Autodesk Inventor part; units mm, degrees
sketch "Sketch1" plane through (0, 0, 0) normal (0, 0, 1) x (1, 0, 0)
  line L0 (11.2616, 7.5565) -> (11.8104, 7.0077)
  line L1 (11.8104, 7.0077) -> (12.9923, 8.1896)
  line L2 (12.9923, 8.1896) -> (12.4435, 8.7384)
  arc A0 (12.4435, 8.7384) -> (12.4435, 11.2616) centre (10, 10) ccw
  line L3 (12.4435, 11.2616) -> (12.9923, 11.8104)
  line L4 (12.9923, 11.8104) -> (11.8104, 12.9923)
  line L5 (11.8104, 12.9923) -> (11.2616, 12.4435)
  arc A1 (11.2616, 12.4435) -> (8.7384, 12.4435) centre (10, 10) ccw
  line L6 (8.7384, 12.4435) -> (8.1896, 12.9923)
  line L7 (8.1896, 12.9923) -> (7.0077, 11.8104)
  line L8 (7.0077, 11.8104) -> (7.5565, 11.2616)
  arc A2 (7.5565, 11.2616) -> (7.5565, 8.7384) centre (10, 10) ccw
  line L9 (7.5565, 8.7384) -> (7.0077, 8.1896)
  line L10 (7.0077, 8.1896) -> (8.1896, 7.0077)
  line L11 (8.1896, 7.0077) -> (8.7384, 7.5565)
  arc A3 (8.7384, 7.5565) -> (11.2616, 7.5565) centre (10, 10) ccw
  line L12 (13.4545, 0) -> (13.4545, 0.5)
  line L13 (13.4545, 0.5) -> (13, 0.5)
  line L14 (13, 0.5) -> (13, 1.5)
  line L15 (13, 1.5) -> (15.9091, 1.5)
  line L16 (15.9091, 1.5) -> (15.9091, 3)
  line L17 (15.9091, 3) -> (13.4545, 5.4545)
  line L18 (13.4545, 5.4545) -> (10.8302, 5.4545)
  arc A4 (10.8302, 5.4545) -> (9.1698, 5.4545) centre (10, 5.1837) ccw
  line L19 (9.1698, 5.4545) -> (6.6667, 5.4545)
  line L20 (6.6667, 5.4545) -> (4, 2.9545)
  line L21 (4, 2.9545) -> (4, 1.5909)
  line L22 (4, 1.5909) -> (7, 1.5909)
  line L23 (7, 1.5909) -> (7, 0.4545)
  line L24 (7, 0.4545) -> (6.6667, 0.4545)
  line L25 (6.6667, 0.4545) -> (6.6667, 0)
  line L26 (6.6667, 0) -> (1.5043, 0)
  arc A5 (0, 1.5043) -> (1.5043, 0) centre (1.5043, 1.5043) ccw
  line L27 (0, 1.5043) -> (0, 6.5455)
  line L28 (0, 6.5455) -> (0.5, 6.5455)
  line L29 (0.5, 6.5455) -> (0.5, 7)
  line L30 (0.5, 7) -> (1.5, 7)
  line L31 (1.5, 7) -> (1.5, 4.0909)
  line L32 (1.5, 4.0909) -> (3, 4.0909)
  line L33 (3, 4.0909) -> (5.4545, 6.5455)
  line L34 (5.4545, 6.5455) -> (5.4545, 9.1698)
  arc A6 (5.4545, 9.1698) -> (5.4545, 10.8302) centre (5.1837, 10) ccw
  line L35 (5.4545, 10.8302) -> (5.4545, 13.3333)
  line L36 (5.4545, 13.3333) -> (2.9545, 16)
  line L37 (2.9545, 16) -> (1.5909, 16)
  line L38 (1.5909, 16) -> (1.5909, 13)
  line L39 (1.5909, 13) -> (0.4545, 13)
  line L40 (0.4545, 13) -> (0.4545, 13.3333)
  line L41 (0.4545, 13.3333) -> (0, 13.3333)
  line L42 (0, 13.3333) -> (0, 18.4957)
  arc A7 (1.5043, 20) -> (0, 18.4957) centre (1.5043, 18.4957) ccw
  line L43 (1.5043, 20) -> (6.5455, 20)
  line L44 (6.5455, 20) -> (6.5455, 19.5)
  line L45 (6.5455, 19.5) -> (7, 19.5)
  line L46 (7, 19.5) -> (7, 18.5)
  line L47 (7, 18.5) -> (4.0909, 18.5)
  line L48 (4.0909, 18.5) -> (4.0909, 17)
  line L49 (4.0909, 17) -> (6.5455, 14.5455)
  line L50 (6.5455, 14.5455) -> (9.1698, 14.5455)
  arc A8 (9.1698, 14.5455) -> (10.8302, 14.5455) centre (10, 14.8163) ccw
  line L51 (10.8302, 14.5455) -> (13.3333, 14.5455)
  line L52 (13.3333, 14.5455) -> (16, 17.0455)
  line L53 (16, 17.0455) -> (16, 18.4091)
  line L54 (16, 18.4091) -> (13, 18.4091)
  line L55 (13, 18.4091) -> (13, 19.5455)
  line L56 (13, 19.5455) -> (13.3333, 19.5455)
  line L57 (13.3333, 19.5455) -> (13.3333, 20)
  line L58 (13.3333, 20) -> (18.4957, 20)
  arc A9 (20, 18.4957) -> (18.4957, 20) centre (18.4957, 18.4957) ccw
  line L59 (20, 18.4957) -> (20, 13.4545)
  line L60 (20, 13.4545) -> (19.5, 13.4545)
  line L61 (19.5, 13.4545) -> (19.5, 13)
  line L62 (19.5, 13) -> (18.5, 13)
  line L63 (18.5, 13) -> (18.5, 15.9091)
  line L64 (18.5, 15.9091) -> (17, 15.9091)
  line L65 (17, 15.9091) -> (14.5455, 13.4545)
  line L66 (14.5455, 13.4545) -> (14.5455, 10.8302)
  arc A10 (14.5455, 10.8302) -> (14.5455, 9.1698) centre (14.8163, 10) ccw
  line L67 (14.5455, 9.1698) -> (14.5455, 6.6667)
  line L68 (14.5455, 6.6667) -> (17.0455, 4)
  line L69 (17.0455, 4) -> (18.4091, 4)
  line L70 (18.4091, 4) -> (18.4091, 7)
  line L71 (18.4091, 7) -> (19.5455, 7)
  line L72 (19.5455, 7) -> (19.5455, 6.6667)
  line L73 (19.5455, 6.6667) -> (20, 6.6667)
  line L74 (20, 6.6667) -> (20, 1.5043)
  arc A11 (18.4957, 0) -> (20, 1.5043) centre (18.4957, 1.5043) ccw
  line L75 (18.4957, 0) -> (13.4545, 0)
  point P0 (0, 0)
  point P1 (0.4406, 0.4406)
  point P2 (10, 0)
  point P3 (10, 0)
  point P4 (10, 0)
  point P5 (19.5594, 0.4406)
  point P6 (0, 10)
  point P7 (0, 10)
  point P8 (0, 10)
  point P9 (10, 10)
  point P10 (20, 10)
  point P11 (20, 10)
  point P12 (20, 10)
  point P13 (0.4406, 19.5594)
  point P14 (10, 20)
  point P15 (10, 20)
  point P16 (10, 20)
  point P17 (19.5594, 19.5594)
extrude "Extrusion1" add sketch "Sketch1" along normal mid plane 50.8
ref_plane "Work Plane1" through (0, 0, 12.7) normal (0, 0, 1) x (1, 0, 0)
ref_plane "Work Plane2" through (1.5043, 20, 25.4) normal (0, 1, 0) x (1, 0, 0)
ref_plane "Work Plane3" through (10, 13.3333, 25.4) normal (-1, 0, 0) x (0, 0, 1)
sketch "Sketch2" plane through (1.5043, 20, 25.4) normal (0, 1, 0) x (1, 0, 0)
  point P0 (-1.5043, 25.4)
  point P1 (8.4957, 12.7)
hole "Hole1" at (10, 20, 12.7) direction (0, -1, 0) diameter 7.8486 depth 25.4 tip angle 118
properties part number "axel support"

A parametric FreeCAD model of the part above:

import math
import FreeCAD as App
import Part
import Sketcher
Q = App.Units.Quantity

doc = App.newDocument("Part")
body = doc.addObject("PartDesign::Body", "Body")

# Sketch on XY plane
sketch1 = body.newObject("Sketcher::SketchObject", "Sketch")
sketch1.AttachmentSupport = (doc.getObject("XY_Plane"), [""])
sketch1.MapMode = "FlatFace"
sketch1.addGeometry([
    Part.LineSegment(App.Vector(13.45, 0.5, 0), App.Vector(13.45, 0, 0)),  # 0
    Part.LineSegment(App.Vector(13.45, 0, 0), App.Vector(18.5, 0, 0)),  # 1
    Part.ArcOfCircle(Part.Circle(App.Vector(18.5, 1.5, 0), App.Vector(0, 0, 1), 1.5), math.radians(-90), math.radians(0)),  # 2
    Part.LineSegment(App.Vector(20, 1.5, 0), App.Vector(20, 6.67, 0)),  # 3
    Part.LineSegment(App.Vector(20, 6.67, 0), App.Vector(19.55, 6.67, 0)),  # 4
    Part.LineSegment(App.Vector(19.55, 6.67, 0), App.Vector(19.55, 7, 0)),  # 5
    Part.LineSegment(App.Vector(19.55, 7, 0), App.Vector(18.41, 7, 0)),  # 6
    Part.LineSegment(App.Vector(18.41, 7, 0), App.Vector(18.41, 4, 0)),  # 7
    Part.LineSegment(App.Vector(18.41, 4, 0), App.Vector(17.05, 4, 0)),  # 8
    Part.LineSegment(App.Vector(17.05, 4, 0), App.Vector(14.55, 6.67, 0)),  # 9
    Part.LineSegment(App.Vector(14.55, 6.67, 0), App.Vector(14.55, 9.17, 0)),  # 10
    Part.ArcOfCircle(Part.Circle(App.Vector(14.82, 10, 0), App.Vector(0, 0, 1), 0.87), math.radians(108), math.radians(252)),  # 11
    Part.LineSegment(App.Vector(14.55, 10.83, 0), App.Vector(14.55, 13.45, 0)),  # 12
    Part.LineSegment(App.Vector(14.55, 13.45, 0), App.Vector(17, 15.91, 0)),  # 13
    Part.LineSegment(App.Vector(17, 15.91, 0), App.Vector(18.5, 15.91, 0)),  # 14
    Part.LineSegment(App.Vector(18.5, 15.91, 0), App.Vector(18.5, 13, 0)),  # 15
    Part.LineSegment(App.Vector(18.5, 13, 0), App.Vector(19.5, 13, 0)),  # 16
    Part.LineSegment(App.Vector(19.5, 13, 0), App.Vector(19.5, 13.45, 0)),  # 17
    Part.LineSegment(App.Vector(19.5, 13.45, 0), App.Vector(20, 13.45, 0)),  # 18
    Part.LineSegment(App.Vector(20, 13.45, 0), App.Vector(20, 18.5, 0)),  # 19
    Part.ArcOfCircle(Part.Circle(App.Vector(18.5, 18.5, 0), App.Vector(0, 0, 1), 1.5), math.radians(0), math.radians(90)),  # 20
    Part.LineSegment(App.Vector(18.5, 20, 0), App.Vector(13.33, 20, 0)),  # 21
    Part.LineSegment(App.Vector(13.33, 20, 0), App.Vector(13.33, 19.55, 0)),  # 22
    Part.LineSegment(App.Vector(13.33, 19.55, 0), App.Vector(13, 19.55, 0)),  # 23
    Part.LineSegment(App.Vector(13, 19.55, 0), App.Vector(13, 18.41, 0)),  # 24
    Part.LineSegment(App.Vector(13, 18.41, 0), App.Vector(16, 18.41, 0)),  # 25
    Part.LineSegment(App.Vector(16, 18.41, 0), App.Vector(16, 17.05, 0)),  # 26
    Part.LineSegment(App.Vector(16, 17.05, 0), App.Vector(13.33, 14.55, 0)),  # 27
    Part.LineSegment(App.Vector(13.33, 14.55, 0), App.Vector(10.83, 14.55, 0)),  # 28
    Part.ArcOfCircle(Part.Circle(App.Vector(10, 14.82, 0), App.Vector(0, 0, 1), 0.87), math.radians(-162), math.radians(-18)),  # 29
    Part.LineSegment(App.Vector(9.17, 14.55, 0), App.Vector(6.55, 14.55, 0)),  # 30
    Part.LineSegment(App.Vector(6.55, 14.55, 0), App.Vector(4.09, 17, 0)),  # 31
    Part.LineSegment(App.Vector(4.09, 17, 0), App.Vector(4.09, 18.5, 0)),  # 32
    Part.LineSegment(App.Vector(4.09, 18.5, 0), App.Vector(7, 18.5, 0)),  # 33
    Part.LineSegment(App.Vector(7, 18.5, 0), App.Vector(7, 19.5, 0)),  # 34
    Part.LineSegment(App.Vector(7, 19.5, 0), App.Vector(6.55, 19.5, 0)),  # 35
    Part.LineSegment(App.Vector(6.55, 19.5, 0), App.Vector(6.55, 20, 0)),  # 36
    Part.LineSegment(App.Vector(6.55, 20, 0), App.Vector(1.5, 20, 0)),  # 37
    Part.ArcOfCircle(Part.Circle(App.Vector(1.5, 18.5, 0), App.Vector(0, 0, 1), 1.5), math.radians(90), math.radians(180)),  # 38
    Part.LineSegment(App.Vector(0, 18.5, 0), App.Vector(0, 13.33, 0)),  # 39
    Part.LineSegment(App.Vector(0, 13.33, 0), App.Vector(0.45, 13.33, 0)),  # 40
    Part.LineSegment(App.Vector(0.45, 13.33, 0), App.Vector(0.45, 13, 0)),  # 41
    Part.LineSegment(App.Vector(0.45, 13, 0), App.Vector(1.59, 13, 0)),  # 42
    Part.LineSegment(App.Vector(1.59, 13, 0), App.Vector(1.59, 16, 0)),  # 43
    Part.LineSegment(App.Vector(1.59, 16, 0), App.Vector(2.95, 16, 0)),  # 44
    Part.LineSegment(App.Vector(2.95, 16, 0), App.Vector(5.45, 13.33, 0)),  # 45
    Part.LineSegment(App.Vector(5.45, 13.33, 0), App.Vector(5.45, 10.83, 0)),  # 46
    Part.ArcOfCircle(Part.Circle(App.Vector(5.18, 10, 0), App.Vector(0, 0, 1), 0.87), math.radians(-72), math.radians(72)),  # 47
    Part.LineSegment(App.Vector(5.45, 9.17, 0), App.Vector(5.45, 6.55, 0)),  # 48
    Part.LineSegment(App.Vector(5.45, 6.55, 0), App.Vector(3, 4.09, 0)),  # 49
    Part.LineSegment(App.Vector(3, 4.09, 0), App.Vector(1.5, 4.09, 0)),  # 50
    Part.LineSegment(App.Vector(1.5, 4.09, 0), App.Vector(1.5, 7, 0)),  # 51
    Part.LineSegment(App.Vector(1.5, 7, 0), App.Vector(0.5, 7, 0)),  # 52
    Part.LineSegment(App.Vector(0.5, 7, 0), App.Vector(0.5, 6.55, 0)),  # 53
    Part.LineSegment(App.Vector(0.5, 6.55, 0), App.Vector(0, 6.55, 0)),  # 54
    Part.LineSegment(App.Vector(0, 6.55, 0), App.Vector(0, 1.5, 0)),  # 55
    Part.ArcOfCircle(Part.Circle(App.Vector(1.5, 1.5, 0), App.Vector(0, 0, 1), 1.5), math.radians(180), math.radians(270)),  # 56
    Part.LineSegment(App.Vector(1.5, 0, 0), App.Vector(6.67, 0, 0)),  # 57
    Part.LineSegment(App.Vector(6.67, 0, 0), App.Vector(6.67, 0.45, 0)),  # 58
    Part.LineSegment(App.Vector(6.67, 0.45, 0), App.Vector(7, 0.45, 0)),  # 59
    Part.LineSegment(App.Vector(7, 0.45, 0), App.Vector(7, 1.59, 0)),  # 60
    Part.LineSegment(App.Vector(7, 1.59, 0), App.Vector(4, 1.59, 0)),  # 61
    Part.LineSegment(App.Vector(4, 1.59, 0), App.Vector(4, 2.95, 0)),  # 62
    Part.LineSegment(App.Vector(4, 2.95, 0), App.Vector(6.67, 5.45, 0)),  # 63
    Part.LineSegment(App.Vector(6.67, 5.45, 0), App.Vector(9.17, 5.45, 0)),  # 64
    Part.ArcOfCircle(Part.Circle(App.Vector(10, 5.18, 0), App.Vector(0, 0, 1), 0.87), math.radians(18), math.radians(162)),  # 65
    Part.LineSegment(App.Vector(10.83, 5.45, 0), App.Vector(13.45, 5.45, 0)),  # 66
    Part.LineSegment(App.Vector(13.45, 5.45, 0), App.Vector(15.91, 3, 0)),  # 67
    Part.LineSegment(App.Vector(15.91, 3, 0), App.Vector(15.91, 1.5, 0)),  # 68
    Part.LineSegment(App.Vector(15.91, 1.5, 0), App.Vector(13, 1.5, 0)),  # 69
    Part.LineSegment(App.Vector(13, 1.5, 0), App.Vector(13, 0.5, 0)),  # 70
    Part.LineSegment(App.Vector(13, 0.5, 0), App.Vector(13.45, 0.5, 0)),  # 71
    Part.LineSegment(App.Vector(11.81, 7.01, 0), App.Vector(11.26, 7.56, 0)),  # 72
    Part.ArcOfCircle(Part.Circle(App.Vector(10, 10, 0), App.Vector(0, 0, 1), 2.75), math.radians(-117), math.radians(-63)),  # 73
    Part.LineSegment(App.Vector(8.74, 7.56, 0), App.Vector(8.19, 7.01, 0)),  # 74
    Part.LineSegment(App.Vector(8.19, 7.01, 0), App.Vector(7.01, 8.19, 0)),  # 75
    Part.LineSegment(App.Vector(7.01, 8.19, 0), App.Vector(7.56, 8.74, 0)),  # 76
    Part.ArcOfCircle(Part.Circle(App.Vector(10, 10, 0), App.Vector(0, 0, 1), 2.75), math.radians(153), math.radians(207)),  # 77
    Part.LineSegment(App.Vector(7.56, 11.26, 0), App.Vector(7.01, 11.81, 0)),  # 78
    Part.LineSegment(App.Vector(7.01, 11.81, 0), App.Vector(8.19, 12.99, 0)),  # 79
    Part.LineSegment(App.Vector(8.19, 12.99, 0), App.Vector(8.74, 12.44, 0)),  # 80
    Part.ArcOfCircle(Part.Circle(App.Vector(10, 10, 0), App.Vector(0, 0, 1), 2.75), math.radians(63), math.radians(117)),  # 81
    Part.LineSegment(App.Vector(11.26, 12.44, 0), App.Vector(11.81, 12.99, 0)),  # 82
    Part.LineSegment(App.Vector(11.81, 12.99, 0), App.Vector(12.99, 11.81, 0)),  # 83
    Part.LineSegment(App.Vector(12.99, 11.81, 0), App.Vector(12.44, 11.26, 0)),  # 84
    Part.ArcOfCircle(Part.Circle(App.Vector(10, 10, 0), App.Vector(0, 0, 1), 2.75), math.radians(-27), math.radians(27)),  # 85
    Part.LineSegment(App.Vector(12.44, 8.74, 0), App.Vector(12.99, 8.19, 0)),  # 86
    Part.LineSegment(App.Vector(12.99, 8.19, 0), App.Vector(11.81, 7.01, 0)),  # 87
], False)
sketch1.addConstraint([
    Sketcher.Constraint("Coincident", 0, 2, 1, 1),
    Sketcher.Constraint("Tangent", 1, 2, 2, 1),
    Sketcher.Constraint("Tangent", 2, 2, 3, 1),
    Sketcher.Constraint("Coincident", 3, 2, 4, 1),
    Sketcher.Constraint("Coincident", 4, 2, 5, 1),
    Sketcher.Constraint("Coincident", 5, 2, 6, 1),
    Sketcher.Constraint("Coincident", 6, 2, 7, 1),
    Sketcher.Constraint("Coincident", 7, 2, 8, 1),
    Sketcher.Constraint("Coincident", 8, 2, 9, 1),
    Sketcher.Constraint("Coincident", 9, 2, 10, 1),
    Sketcher.Constraint("Coincident", 10, 2, 11, 2),
    Sketcher.Constraint("Coincident", 11, 1, 12, 1),
    Sketcher.Constraint("Coincident", 12, 2, 13, 1),
    Sketcher.Constraint("Coincident", 13, 2, 14, 1),
    Sketcher.Constraint("Coincident", 14, 2, 15, 1),
    Sketcher.Constraint("Coincident", 15, 2, 16, 1),
    Sketcher.Constraint("Coincident", 16, 2, 17, 1),
    Sketcher.Constraint("Coincident", 17, 2, 18, 1),
    Sketcher.Constraint("Coincident", 18, 2, 19, 1),
    Sketcher.Constraint("Tangent", 19, 2, 20, 1),
    Sketcher.Constraint("Tangent", 20, 2, 21, 1),
    Sketcher.Constraint("Coincident", 21, 2, 22, 1),
    Sketcher.Constraint("Coincident", 22, 2, 23, 1),
    Sketcher.Constraint("Coincident", 23, 2, 24, 1),
    Sketcher.Constraint("Coincident", 24, 2, 25, 1),
    Sketcher.Constraint("Coincident", 25, 2, 26, 1),
    Sketcher.Constraint("Coincident", 26, 2, 27, 1),
    Sketcher.Constraint("Coincident", 27, 2, 28, 1),
    Sketcher.Constraint("Coincident", 28, 2, 29, 2),
    Sketcher.Constraint("Coincident", 29, 1, 30, 1),
    Sketcher.Constraint("Coincident", 30, 2, 31, 1),
    Sketcher.Constraint("Coincident", 31, 2, 32, 1),
    Sketcher.Constraint("Coincident", 32, 2, 33, 1),
    Sketcher.Constraint("Coincident", 33, 2, 34, 1),
    Sketcher.Constraint("Coincident", 34, 2, 35, 1),
    Sketcher.Constraint("Coincident", 35, 2, 36, 1),
    Sketcher.Constraint("Coincident", 36, 2, 37, 1),
    Sketcher.Constraint("Tangent", 37, 2, 38, 1),
    Sketcher.Constraint("Tangent", 38, 2, 39, 1),
    Sketcher.Constraint("Coincident", 39, 2, 40, 1),
    Sketcher.Constraint("Coincident", 40, 2, 41, 1),
    Sketcher.Constraint("Coincident", 41, 2, 42, 1),
    Sketcher.Constraint("Coincident", 42, 2, 43, 1),
    Sketcher.Constraint("Coincident", 43, 2, 44, 1),
    Sketcher.Constraint("Coincident", 44, 2, 45, 1),
    Sketcher.Constraint("Coincident", 45, 2, 46, 1),
    Sketcher.Constraint("Coincident", 46, 2, 47, 2),
    Sketcher.Constraint("Coincident", 47, 1, 48, 1),
    Sketcher.Constraint("Coincident", 48, 2, 49, 1),
    Sketcher.Constraint("Coincident", 49, 2, 50, 1),
    Sketcher.Constraint("Coincident", 50, 2, 51, 1),
    Sketcher.Constraint("Coincident", 51, 2, 52, 1),
    Sketcher.Constraint("Coincident", 52, 2, 53, 1),
    Sketcher.Constraint("Coincident", 53, 2, 54, 1),
    Sketcher.Constraint("Coincident", 54, 2, 55, 1),
    Sketcher.Constraint("Tangent", 55, 2, 56, 1),
    Sketcher.Constraint("Tangent", 56, 2, 57, 1),
    Sketcher.Constraint("Coincident", 57, 2, 58, 1),
    Sketcher.Constraint("Coincident", 58, 2, 59, 1),
    Sketcher.Constraint("Coincident", 59, 2, 60, 1),
    Sketcher.Constraint("Coincident", 60, 2, 61, 1),
    Sketcher.Constraint("Coincident", 61, 2, 62, 1),
    Sketcher.Constraint("Coincident", 62, 2, 63, 1),
    Sketcher.Constraint("Coincident", 63, 2, 64, 1),
    Sketcher.Constraint("Coincident", 64, 2, 65, 2),
    Sketcher.Constraint("Coincident", 65, 1, 66, 1),
    Sketcher.Constraint("Coincident", 66, 2, 67, 1),
    Sketcher.Constraint("Coincident", 67, 2, 68, 1),
    Sketcher.Constraint("Coincident", 68, 2, 69, 1),
    Sketcher.Constraint("Coincident", 69, 2, 70, 1),
    Sketcher.Constraint("Coincident", 70, 2, 71, 1),
    Sketcher.Constraint("Coincident", 71, 2, 0, 1),
    Sketcher.Constraint("Coincident", 72, 2, 73, 2),
    Sketcher.Constraint("Coincident", 73, 1, 74, 1),
    Sketcher.Constraint("Coincident", 74, 2, 75, 1),
    Sketcher.Constraint("Coincident", 75, 2, 76, 1),
    Sketcher.Constraint("Coincident", 76, 2, 77, 2),
    Sketcher.Constraint("Coincident", 77, 1, 78, 1),
    Sketcher.Constraint("Coincident", 78, 2, 79, 1),
    Sketcher.Constraint("Coincident", 79, 2, 80, 1),
    Sketcher.Constraint("Coincident", 80, 2, 81, 2),
    Sketcher.Constraint("Coincident", 81, 1, 82, 1),
    Sketcher.Constraint("Coincident", 82, 2, 83, 1),
    Sketcher.Constraint("Coincident", 83, 2, 84, 1),
    Sketcher.Constraint("Coincident", 84, 2, 85, 2),
    Sketcher.Constraint("Coincident", 85, 1, 86, 1),
    Sketcher.Constraint("Coincident", 86, 2, 87, 1),
    Sketcher.Constraint("Coincident", 87, 2, 72, 1),
    Sketcher.Constraint("Vertical", 0),
    Sketcher.Constraint("Horizontal", 1),
    Sketcher.Constraint("Vertical", 3),
    Sketcher.Constraint("Horizontal", 4),
    Sketcher.Constraint("Vertical", 5),
    Sketcher.Constraint("Horizontal", 6),
    Sketcher.Constraint("Vertical", 7),
    Sketcher.Constraint("Horizontal", 8),
    Sketcher.Constraint("Vertical", 10),
    Sketcher.Constraint("Vertical", 12),
    Sketcher.Constraint("Horizontal", 14),
    Sketcher.Constraint("Vertical", 15),
    Sketcher.Constraint("Horizontal", 16),
    Sketcher.Constraint("Vertical", 17),
    Sketcher.Constraint("Horizontal", 18),
    Sketcher.Constraint("Vertical", 19),
    Sketcher.Constraint("Horizontal", 21),
    Sketcher.Constraint("Vertical", 22),
    Sketcher.Constraint("Horizontal", 23),
    Sketcher.Constraint("Vertical", 24),
    Sketcher.Constraint("Horizontal", 25),
    Sketcher.Constraint("Vertical", 26),
    Sketcher.Constraint("Horizontal", 28),
    Sketcher.Constraint("Horizontal", 30),
    Sketcher.Constraint("Vertical", 32),
    Sketcher.Constraint("Horizontal", 33),
    Sketcher.Constraint("Vertical", 34),
    Sketcher.Constraint("Horizontal", 35),
    Sketcher.Constraint("Vertical", 36),
    Sketcher.Constraint("Horizontal", 37),
    Sketcher.Constraint("Vertical", 39),
    Sketcher.Constraint("Horizontal", 40),
    Sketcher.Constraint("Vertical", 41),
    Sketcher.Constraint("Horizontal", 42),
    Sketcher.Constraint("Vertical", 43),
    Sketcher.Constraint("Horizontal", 44),
    Sketcher.Constraint("Vertical", 46),
    Sketcher.Constraint("Vertical", 48),
    Sketcher.Constraint("Horizontal", 50),
    Sketcher.Constraint("Vertical", 51),
    Sketcher.Constraint("Horizontal", 52),
    Sketcher.Constraint("Vertical", 53),
    Sketcher.Constraint("Horizontal", 54),
    Sketcher.Constraint("Vertical", 55),
    Sketcher.Constraint("Horizontal", 57),
    Sketcher.Constraint("Vertical", 58),
    Sketcher.Constraint("Horizontal", 59),
    Sketcher.Constraint("Vertical", 60),
    Sketcher.Constraint("Horizontal", 61),
    Sketcher.Constraint("Vertical", 62),
    Sketcher.Constraint("Horizontal", 64),
    Sketcher.Constraint("Horizontal", 66),
    Sketcher.Constraint("Vertical", 68),
    Sketcher.Constraint("Horizontal", 69),
    Sketcher.Constraint("Vertical", 70),
    Sketcher.Constraint("Horizontal", 71),
    Sketcher.Constraint("Coincident", 77, 3, 73, 3),
    Sketcher.Constraint("Coincident", 81, 3, 73, 3),
    Sketcher.Constraint("Coincident", 85, 3, 73, 3),
    Sketcher.Constraint("Equal", 2, 20),
    Sketcher.Constraint("Equal", 11, 29),
    Sketcher.Constraint("Equal", 20, 38),
    Sketcher.Constraint("Equal", 29, 47),
    Sketcher.Constraint("Equal", 38, 56),
    Sketcher.Constraint("Equal", 47, 65),
    Sketcher.Constraint("Equal", 73, 77),
    Sketcher.Constraint("Equal", 77, 81),
    Sketcher.Constraint("Equal", 81, 85),
    Sketcher.Constraint("PointOnObject", 0, 2, -1),
    Sketcher.Constraint("PointOnObject", 38, 2, -2),
    Sketcher.Constraint("PointOnObject", 54, 2, -2),
    Sketcher.Constraint("PointOnObject", 56, 2, -1),
    Sketcher.Constraint("Perpendicular", 9, 27),
    Sketcher.Constraint("Perpendicular", 13, 31),
    Sketcher.Constraint("Perpendicular", 27, 45),
    Sketcher.Constraint("Perpendicular", 31, 49),
    Sketcher.Constraint("Perpendicular", 45, 63),
    Sketcher.Constraint("Perpendicular", 49, 67),
    Sketcher.Constraint("Parallel", 67, 72),
    Sketcher.Constraint("Perpendicular", 72, 74),
    Sketcher.Constraint("Perpendicular", 74, 75),
    Sketcher.Constraint("Perpendicular", 75, 76),
    Sketcher.Constraint("Perpendicular", 76, 78),
    Sketcher.Constraint("Perpendicular", 78, 79),
    Sketcher.Constraint("Perpendicular", 79, 80),
    Sketcher.Constraint("Perpendicular", 80, 82),
    Sketcher.Constraint("Perpendicular", 82, 83),
    Sketcher.Constraint("Perpendicular", 83, 84),
    Sketcher.Constraint("Perpendicular", 84, 86),
    Sketcher.Constraint("Perpendicular", 86, 87),
    Sketcher.Constraint("Horizontal", 20, 3, 38, 3),
    Sketcher.Constraint("Horizontal", 11, 3, 47, 3),
    Sketcher.Constraint("Horizontal", 47, 3, 73, 3),
    Sketcher.Constraint("Horizontal", 4, 2, 9, 2),
    Sketcher.Constraint("Horizontal", 12, 2, 17, 2),
    Sketcher.Constraint("Horizontal", 28, 2, 29, 1),
    Sketcher.Constraint("Horizontal", 16, 2, 41, 2),
    Sketcher.Constraint("Horizontal", 40, 2, 45, 2),
    Sketcher.Constraint("Horizontal", 11, 1, 46, 2),
    Sketcher.Constraint("Horizontal", 10, 2, 47, 1),
    Sketcher.Constraint("Horizontal", 6, 2, 51, 2),
    Sketcher.Constraint("Horizontal", 48, 2, 53, 2),
    Sketcher.Constraint("Horizontal", 64, 2, 65, 1),
    Sketcher.Constraint("Horizontal", 72, 2, 73, 1),
    Sketcher.Constraint("Horizontal", 80, 2, 81, 1),
    Sketcher.Constraint("Horizontal", 79, 2, 82, 2),
    Sketcher.Constraint("Horizontal", 78, 2, 83, 2),
    Sketcher.Constraint("Horizontal", 77, 1, 84, 2),
    Sketcher.Constraint("Horizontal", 76, 2, 85, 1),
    Sketcher.Constraint("Horizontal", 75, 2, 86, 2),
    Sketcher.Constraint("Vertical", 2, 3, 20, 3),
    Sketcher.Constraint("Vertical", 29, 3, 65, 3),
    Sketcher.Constraint("Vertical", 65, 3, 73, 3),
    Sketcher.Constraint("Vertical", 10, 2, 11, 1),
    Sketcher.Constraint("Vertical", 22, 2, 27, 2),
    Sketcher.Constraint("Vertical", 30, 2, 35, 2),
    Sketcher.Constraint("Vertical", 34, 2, 59, 2),
    Sketcher.Constraint("Vertical", 58, 2, 63, 2),
    Sketcher.Constraint("Vertical", 29, 1, 64, 2),
    Sketcher.Constraint("Vertical", 0, 2, 66, 2),
    Sketcher.Constraint("Vertical", 24, 2, 69, 2),
    Sketcher.Constraint("Vertical", 76, 2, 77, 1),
    Sketcher.Constraint("Vertical", 75, 2, 78, 2),
    Sketcher.Constraint("Vertical", 74, 2, 79, 2),
    Sketcher.Constraint("Equal", 4, 35),
    Sketcher.Constraint("Equal", 1, 37),
    Sketcher.Constraint("Equal", 35, 40),
    Sketcher.Constraint("Equal", 6, 42),
    Sketcher.Constraint("Equal", 8, 44),
    Sketcher.Constraint("Equal", 14, 50),
    Sketcher.Constraint("Equal", 16, 52),
    Sketcher.Constraint("Equal", 18, 54),
    Sketcher.Constraint("Equal", 21, 57),
    Sketcher.Constraint("Equal", 23, 59),
    Sketcher.Constraint("Equal", 25, 61),
    Sketcher.Constraint("Equal", 28, 64),
    Sketcher.Constraint("Equal", 33, 69),
    Sketcher.Constraint("Equal", 54, 0),
    Sketcher.Constraint("Equal", 57, 3),
    Sketcher.Constraint("Equal", 59, 5),
    Sketcher.Constraint("Equal", 61, 7),
    Sketcher.Constraint("Equal", 64, 10),
    Sketcher.Constraint("Equal", 66, 12),
    Sketcher.Constraint("Equal", 69, 15),
    Sketcher.Constraint("Equal", 71, 17),
    Sketcher.Constraint("Equal", 37, 19),
    Sketcher.Constraint("Equal", 17, 22),
    Sketcher.Constraint("Equal", 42, 24),
    Sketcher.Constraint("Equal", 44, 26),
    Sketcher.Constraint("Equal", 50, 32),
    Sketcher.Constraint("Equal", 52, 34),
    Sketcher.Constraint("Equal", 3, 39),
    Sketcher.Constraint("Equal", 7, 43),
    Sketcher.Constraint("Equal", 12, 48),
    Sketcher.Constraint("Equal", 53, 58),
    Sketcher.Constraint("Equal", 24, 60),
    Sketcher.Constraint("Equal", 26, 62),
    Sketcher.Constraint("Equal", 32, 68),
    Sketcher.Constraint("Equal", 74, 76),
    Sketcher.Constraint("DistanceX", 16, 1, 16, 2, Q("1 mm")),
    Sketcher.Constraint("DistanceX", 25, 1, 25, 2, Q("3 mm")),
    Sketcher.Constraint("Radius", 73, Q("2.75 mm")),
    Sketcher.Constraint("DistanceX", 14, 1, 14, 2, Q("1.5 mm")),
    Sketcher.Constraint("DistanceX", 18, 1, 18, 2, Q("0.5 mm")),
    Sketcher.Constraint("DistanceY", -1, 1, 11, 3, Q("10 mm")),
    Sketcher.Constraint("DistanceX", -1, 1, 29, 3, Q("10 mm")),
    Sketcher.Constraint("DistanceY", -1, 1, 5, 2, Q("7 mm")),
    Sketcher.Constraint("Radius", 2, Q("1.5043 mm")),
    Sketcher.Constraint("Radius", 11, Q("0.8732 mm")),
    Sketcher.Constraint("DistanceX", 28, 2, 28, 1, Q("2.503 mm")),
    Sketcher.Constraint("DistanceX", 33, 1, 33, 2, Q("2.909 mm")),
    Sketcher.Constraint("DistanceX", 1, 1, 1, 2, Q("5.0412 mm")),
    Sketcher.Constraint("DistanceX", 6, 2, 6, 1, Q("1.1364 mm")),
    Sketcher.Constraint("DistanceX", 8, 2, 8, 1, Q("1.3636 mm")),
    Sketcher.Constraint("DistanceX", 21, 2, 21, 1, Q("5.1624 mm")),
    Sketcher.Constraint("Distance", 72, Q("0.7761 mm")),
    Sketcher.Constraint("Distance", 75, Q("1.6715 mm")),
])
pad1 = body.newObject("PartDesign::Pad", "Pad")
pad1.Profile = sketch1
pad1.Length = 50.8
pad1.Midplane = True

# Sketch on XZ plane
sketch2 = body.newObject("Sketcher::SketchObject", "Sketch001")
sketch2.AttachmentSupport = (doc.getObject("XZ_Plane"), [""])
sketch2.MapMode = "FlatFace"
sketch2.AttachmentOffset = App.Placement(App.Vector(0, 0, -20), App.Rotation())
sketch2.addGeometry(Part.Circle(App.Vector(10, 12.7, 0), App.Vector(0, 0, 1), 3.9), False)
sketch2.addConstraint([
    Sketcher.Constraint("DistanceX", -1, 1, 0, 3, Q("10 mm")),
    Sketcher.Constraint("Diameter", 0, Q("7.8486 mm")),
    Sketcher.Constraint("DistanceY", -1, 1, 0, 3, Q("12.7 mm")),
])
doc.recompute()
hole = body.newObject("PartDesign::Hole", "Hole")
hole.Profile = sketch2
hole.ThreadType = "None"
hole.Diameter = 7.8486
hole.DepthType = "Dimension"
hole.Depth = 25.4
hole.DrillPoint = "Angled"
hole.DrillPointAngle = 118
hole.Reversed = True

doc.recompute()
